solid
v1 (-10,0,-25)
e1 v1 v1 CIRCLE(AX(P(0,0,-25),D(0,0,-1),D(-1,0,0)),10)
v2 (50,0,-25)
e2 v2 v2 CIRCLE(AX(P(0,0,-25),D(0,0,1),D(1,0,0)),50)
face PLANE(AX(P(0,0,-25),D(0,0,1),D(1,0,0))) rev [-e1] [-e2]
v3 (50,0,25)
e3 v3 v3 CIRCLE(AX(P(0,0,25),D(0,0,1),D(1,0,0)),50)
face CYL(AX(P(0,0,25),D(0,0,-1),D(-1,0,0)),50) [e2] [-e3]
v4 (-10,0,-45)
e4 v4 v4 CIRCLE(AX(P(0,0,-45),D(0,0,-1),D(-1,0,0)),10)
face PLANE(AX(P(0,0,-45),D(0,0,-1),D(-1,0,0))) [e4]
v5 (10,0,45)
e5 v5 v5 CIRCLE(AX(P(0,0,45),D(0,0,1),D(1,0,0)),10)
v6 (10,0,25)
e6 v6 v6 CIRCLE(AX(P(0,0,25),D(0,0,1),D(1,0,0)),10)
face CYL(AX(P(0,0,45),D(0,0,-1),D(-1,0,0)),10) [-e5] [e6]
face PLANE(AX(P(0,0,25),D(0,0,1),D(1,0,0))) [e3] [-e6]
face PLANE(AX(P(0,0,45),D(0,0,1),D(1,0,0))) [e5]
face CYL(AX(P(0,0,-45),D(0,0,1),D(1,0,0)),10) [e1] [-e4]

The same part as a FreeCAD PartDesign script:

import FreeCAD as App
import Part
import Sketcher

V = App.Vector

doc = App.newDocument("Part")
params = doc.addObject("Spreadsheet::Sheet", "Params")
for row, (alias, value) in enumerate([
    ("sketch1_diameter", "100 mm"),
    ("pad1_length", "50 mm"),
    ("sketch2_diameter", "20 mm"),
    ("pad2_length", "20 mm"),
    ("sketch3_diameter", "20 mm"),
    ("pad3_length", "20 mm"),
], start=1):
    params.set(f"A{row}", alias)
    params.set(f"B{row}", "=" + value)
    params.setAlias(f"B{row}", alias)

body = doc.addObject("PartDesign::Body", "Body")

sketch1 = body.newObject("Sketcher::SketchObject", "Sketch")
sketch1.AttachmentSupport = (doc.getObject("XY_Plane"), [""])
sketch1.MapMode = "FlatFace"
sketch1.addGeometry(Part.Circle(V(0, 0, 0), V(0, 0, 1), 50), False)
sketch1.addConstraint(Sketcher.Constraint("Coincident", 0, 3, -1, 1))
sketch1.addConstraint(Sketcher.Constraint("Diameter", 0, 100.0))
sketch1.setExpression("Constraints[1]", "Params.sketch1_diameter")
pad1 = body.newObject("PartDesign::Pad", "Pad")
pad1.Profile = sketch1
pad1.setExpression("Length", "Params.pad1_length")
pad1.Midplane = True

sketch2 = body.newObject("Sketcher::SketchObject", "Sketch001")
sketch2.AttachmentSupport = (doc.getObject("XY_Plane"), [""])
sketch2.MapMode = "FlatFace"
sketch2.AttachmentOffset = App.Placement(V(0, 0, -25), App.Rotation())
sketch2.addGeometry(Part.Circle(V(0, 0, 0), V(0, 0, 1), 10), False)
sketch2.addConstraint(Sketcher.Constraint("Coincident", 0, 3, -1, 1))
sketch2.addConstraint(Sketcher.Constraint("Diameter", 0, 20.0))
sketch2.setExpression("Constraints[1]", "Params.sketch2_diameter")
pad2 = body.newObject("PartDesign::Pad", "Pad001")
pad2.Profile = sketch2
pad2.setExpression("Length", "Params.pad2_length")
pad2.Reversed = True

sketch3 = body.newObject("Sketcher::SketchObject", "Sketch002")
sketch3.AttachmentSupport = (doc.getObject("XY_Plane"), [""])
sketch3.MapMode = "FlatFace"
sketch3.AttachmentOffset = App.Placement(V(0, 0, 45), App.Rotation())
sketch3.addGeometry(Part.Circle(V(0, 0, 0), V(0, 0, 1), 10), False)
sketch3.addConstraint(Sketcher.Constraint("Coincident", 0, 3, -1, 1))
sketch3.addConstraint(Sketcher.Constraint("Diameter", 0, 20.0))
sketch3.setExpression("Constraints[1]", "Params.sketch3_diameter")
pad3 = body.newObject("PartDesign::Pad", "Pad002")
pad3.Profile = sketch3
pad3.setExpression("Length", "Params.pad3_length")
pad3.Reversed = True

doc.recompute()
